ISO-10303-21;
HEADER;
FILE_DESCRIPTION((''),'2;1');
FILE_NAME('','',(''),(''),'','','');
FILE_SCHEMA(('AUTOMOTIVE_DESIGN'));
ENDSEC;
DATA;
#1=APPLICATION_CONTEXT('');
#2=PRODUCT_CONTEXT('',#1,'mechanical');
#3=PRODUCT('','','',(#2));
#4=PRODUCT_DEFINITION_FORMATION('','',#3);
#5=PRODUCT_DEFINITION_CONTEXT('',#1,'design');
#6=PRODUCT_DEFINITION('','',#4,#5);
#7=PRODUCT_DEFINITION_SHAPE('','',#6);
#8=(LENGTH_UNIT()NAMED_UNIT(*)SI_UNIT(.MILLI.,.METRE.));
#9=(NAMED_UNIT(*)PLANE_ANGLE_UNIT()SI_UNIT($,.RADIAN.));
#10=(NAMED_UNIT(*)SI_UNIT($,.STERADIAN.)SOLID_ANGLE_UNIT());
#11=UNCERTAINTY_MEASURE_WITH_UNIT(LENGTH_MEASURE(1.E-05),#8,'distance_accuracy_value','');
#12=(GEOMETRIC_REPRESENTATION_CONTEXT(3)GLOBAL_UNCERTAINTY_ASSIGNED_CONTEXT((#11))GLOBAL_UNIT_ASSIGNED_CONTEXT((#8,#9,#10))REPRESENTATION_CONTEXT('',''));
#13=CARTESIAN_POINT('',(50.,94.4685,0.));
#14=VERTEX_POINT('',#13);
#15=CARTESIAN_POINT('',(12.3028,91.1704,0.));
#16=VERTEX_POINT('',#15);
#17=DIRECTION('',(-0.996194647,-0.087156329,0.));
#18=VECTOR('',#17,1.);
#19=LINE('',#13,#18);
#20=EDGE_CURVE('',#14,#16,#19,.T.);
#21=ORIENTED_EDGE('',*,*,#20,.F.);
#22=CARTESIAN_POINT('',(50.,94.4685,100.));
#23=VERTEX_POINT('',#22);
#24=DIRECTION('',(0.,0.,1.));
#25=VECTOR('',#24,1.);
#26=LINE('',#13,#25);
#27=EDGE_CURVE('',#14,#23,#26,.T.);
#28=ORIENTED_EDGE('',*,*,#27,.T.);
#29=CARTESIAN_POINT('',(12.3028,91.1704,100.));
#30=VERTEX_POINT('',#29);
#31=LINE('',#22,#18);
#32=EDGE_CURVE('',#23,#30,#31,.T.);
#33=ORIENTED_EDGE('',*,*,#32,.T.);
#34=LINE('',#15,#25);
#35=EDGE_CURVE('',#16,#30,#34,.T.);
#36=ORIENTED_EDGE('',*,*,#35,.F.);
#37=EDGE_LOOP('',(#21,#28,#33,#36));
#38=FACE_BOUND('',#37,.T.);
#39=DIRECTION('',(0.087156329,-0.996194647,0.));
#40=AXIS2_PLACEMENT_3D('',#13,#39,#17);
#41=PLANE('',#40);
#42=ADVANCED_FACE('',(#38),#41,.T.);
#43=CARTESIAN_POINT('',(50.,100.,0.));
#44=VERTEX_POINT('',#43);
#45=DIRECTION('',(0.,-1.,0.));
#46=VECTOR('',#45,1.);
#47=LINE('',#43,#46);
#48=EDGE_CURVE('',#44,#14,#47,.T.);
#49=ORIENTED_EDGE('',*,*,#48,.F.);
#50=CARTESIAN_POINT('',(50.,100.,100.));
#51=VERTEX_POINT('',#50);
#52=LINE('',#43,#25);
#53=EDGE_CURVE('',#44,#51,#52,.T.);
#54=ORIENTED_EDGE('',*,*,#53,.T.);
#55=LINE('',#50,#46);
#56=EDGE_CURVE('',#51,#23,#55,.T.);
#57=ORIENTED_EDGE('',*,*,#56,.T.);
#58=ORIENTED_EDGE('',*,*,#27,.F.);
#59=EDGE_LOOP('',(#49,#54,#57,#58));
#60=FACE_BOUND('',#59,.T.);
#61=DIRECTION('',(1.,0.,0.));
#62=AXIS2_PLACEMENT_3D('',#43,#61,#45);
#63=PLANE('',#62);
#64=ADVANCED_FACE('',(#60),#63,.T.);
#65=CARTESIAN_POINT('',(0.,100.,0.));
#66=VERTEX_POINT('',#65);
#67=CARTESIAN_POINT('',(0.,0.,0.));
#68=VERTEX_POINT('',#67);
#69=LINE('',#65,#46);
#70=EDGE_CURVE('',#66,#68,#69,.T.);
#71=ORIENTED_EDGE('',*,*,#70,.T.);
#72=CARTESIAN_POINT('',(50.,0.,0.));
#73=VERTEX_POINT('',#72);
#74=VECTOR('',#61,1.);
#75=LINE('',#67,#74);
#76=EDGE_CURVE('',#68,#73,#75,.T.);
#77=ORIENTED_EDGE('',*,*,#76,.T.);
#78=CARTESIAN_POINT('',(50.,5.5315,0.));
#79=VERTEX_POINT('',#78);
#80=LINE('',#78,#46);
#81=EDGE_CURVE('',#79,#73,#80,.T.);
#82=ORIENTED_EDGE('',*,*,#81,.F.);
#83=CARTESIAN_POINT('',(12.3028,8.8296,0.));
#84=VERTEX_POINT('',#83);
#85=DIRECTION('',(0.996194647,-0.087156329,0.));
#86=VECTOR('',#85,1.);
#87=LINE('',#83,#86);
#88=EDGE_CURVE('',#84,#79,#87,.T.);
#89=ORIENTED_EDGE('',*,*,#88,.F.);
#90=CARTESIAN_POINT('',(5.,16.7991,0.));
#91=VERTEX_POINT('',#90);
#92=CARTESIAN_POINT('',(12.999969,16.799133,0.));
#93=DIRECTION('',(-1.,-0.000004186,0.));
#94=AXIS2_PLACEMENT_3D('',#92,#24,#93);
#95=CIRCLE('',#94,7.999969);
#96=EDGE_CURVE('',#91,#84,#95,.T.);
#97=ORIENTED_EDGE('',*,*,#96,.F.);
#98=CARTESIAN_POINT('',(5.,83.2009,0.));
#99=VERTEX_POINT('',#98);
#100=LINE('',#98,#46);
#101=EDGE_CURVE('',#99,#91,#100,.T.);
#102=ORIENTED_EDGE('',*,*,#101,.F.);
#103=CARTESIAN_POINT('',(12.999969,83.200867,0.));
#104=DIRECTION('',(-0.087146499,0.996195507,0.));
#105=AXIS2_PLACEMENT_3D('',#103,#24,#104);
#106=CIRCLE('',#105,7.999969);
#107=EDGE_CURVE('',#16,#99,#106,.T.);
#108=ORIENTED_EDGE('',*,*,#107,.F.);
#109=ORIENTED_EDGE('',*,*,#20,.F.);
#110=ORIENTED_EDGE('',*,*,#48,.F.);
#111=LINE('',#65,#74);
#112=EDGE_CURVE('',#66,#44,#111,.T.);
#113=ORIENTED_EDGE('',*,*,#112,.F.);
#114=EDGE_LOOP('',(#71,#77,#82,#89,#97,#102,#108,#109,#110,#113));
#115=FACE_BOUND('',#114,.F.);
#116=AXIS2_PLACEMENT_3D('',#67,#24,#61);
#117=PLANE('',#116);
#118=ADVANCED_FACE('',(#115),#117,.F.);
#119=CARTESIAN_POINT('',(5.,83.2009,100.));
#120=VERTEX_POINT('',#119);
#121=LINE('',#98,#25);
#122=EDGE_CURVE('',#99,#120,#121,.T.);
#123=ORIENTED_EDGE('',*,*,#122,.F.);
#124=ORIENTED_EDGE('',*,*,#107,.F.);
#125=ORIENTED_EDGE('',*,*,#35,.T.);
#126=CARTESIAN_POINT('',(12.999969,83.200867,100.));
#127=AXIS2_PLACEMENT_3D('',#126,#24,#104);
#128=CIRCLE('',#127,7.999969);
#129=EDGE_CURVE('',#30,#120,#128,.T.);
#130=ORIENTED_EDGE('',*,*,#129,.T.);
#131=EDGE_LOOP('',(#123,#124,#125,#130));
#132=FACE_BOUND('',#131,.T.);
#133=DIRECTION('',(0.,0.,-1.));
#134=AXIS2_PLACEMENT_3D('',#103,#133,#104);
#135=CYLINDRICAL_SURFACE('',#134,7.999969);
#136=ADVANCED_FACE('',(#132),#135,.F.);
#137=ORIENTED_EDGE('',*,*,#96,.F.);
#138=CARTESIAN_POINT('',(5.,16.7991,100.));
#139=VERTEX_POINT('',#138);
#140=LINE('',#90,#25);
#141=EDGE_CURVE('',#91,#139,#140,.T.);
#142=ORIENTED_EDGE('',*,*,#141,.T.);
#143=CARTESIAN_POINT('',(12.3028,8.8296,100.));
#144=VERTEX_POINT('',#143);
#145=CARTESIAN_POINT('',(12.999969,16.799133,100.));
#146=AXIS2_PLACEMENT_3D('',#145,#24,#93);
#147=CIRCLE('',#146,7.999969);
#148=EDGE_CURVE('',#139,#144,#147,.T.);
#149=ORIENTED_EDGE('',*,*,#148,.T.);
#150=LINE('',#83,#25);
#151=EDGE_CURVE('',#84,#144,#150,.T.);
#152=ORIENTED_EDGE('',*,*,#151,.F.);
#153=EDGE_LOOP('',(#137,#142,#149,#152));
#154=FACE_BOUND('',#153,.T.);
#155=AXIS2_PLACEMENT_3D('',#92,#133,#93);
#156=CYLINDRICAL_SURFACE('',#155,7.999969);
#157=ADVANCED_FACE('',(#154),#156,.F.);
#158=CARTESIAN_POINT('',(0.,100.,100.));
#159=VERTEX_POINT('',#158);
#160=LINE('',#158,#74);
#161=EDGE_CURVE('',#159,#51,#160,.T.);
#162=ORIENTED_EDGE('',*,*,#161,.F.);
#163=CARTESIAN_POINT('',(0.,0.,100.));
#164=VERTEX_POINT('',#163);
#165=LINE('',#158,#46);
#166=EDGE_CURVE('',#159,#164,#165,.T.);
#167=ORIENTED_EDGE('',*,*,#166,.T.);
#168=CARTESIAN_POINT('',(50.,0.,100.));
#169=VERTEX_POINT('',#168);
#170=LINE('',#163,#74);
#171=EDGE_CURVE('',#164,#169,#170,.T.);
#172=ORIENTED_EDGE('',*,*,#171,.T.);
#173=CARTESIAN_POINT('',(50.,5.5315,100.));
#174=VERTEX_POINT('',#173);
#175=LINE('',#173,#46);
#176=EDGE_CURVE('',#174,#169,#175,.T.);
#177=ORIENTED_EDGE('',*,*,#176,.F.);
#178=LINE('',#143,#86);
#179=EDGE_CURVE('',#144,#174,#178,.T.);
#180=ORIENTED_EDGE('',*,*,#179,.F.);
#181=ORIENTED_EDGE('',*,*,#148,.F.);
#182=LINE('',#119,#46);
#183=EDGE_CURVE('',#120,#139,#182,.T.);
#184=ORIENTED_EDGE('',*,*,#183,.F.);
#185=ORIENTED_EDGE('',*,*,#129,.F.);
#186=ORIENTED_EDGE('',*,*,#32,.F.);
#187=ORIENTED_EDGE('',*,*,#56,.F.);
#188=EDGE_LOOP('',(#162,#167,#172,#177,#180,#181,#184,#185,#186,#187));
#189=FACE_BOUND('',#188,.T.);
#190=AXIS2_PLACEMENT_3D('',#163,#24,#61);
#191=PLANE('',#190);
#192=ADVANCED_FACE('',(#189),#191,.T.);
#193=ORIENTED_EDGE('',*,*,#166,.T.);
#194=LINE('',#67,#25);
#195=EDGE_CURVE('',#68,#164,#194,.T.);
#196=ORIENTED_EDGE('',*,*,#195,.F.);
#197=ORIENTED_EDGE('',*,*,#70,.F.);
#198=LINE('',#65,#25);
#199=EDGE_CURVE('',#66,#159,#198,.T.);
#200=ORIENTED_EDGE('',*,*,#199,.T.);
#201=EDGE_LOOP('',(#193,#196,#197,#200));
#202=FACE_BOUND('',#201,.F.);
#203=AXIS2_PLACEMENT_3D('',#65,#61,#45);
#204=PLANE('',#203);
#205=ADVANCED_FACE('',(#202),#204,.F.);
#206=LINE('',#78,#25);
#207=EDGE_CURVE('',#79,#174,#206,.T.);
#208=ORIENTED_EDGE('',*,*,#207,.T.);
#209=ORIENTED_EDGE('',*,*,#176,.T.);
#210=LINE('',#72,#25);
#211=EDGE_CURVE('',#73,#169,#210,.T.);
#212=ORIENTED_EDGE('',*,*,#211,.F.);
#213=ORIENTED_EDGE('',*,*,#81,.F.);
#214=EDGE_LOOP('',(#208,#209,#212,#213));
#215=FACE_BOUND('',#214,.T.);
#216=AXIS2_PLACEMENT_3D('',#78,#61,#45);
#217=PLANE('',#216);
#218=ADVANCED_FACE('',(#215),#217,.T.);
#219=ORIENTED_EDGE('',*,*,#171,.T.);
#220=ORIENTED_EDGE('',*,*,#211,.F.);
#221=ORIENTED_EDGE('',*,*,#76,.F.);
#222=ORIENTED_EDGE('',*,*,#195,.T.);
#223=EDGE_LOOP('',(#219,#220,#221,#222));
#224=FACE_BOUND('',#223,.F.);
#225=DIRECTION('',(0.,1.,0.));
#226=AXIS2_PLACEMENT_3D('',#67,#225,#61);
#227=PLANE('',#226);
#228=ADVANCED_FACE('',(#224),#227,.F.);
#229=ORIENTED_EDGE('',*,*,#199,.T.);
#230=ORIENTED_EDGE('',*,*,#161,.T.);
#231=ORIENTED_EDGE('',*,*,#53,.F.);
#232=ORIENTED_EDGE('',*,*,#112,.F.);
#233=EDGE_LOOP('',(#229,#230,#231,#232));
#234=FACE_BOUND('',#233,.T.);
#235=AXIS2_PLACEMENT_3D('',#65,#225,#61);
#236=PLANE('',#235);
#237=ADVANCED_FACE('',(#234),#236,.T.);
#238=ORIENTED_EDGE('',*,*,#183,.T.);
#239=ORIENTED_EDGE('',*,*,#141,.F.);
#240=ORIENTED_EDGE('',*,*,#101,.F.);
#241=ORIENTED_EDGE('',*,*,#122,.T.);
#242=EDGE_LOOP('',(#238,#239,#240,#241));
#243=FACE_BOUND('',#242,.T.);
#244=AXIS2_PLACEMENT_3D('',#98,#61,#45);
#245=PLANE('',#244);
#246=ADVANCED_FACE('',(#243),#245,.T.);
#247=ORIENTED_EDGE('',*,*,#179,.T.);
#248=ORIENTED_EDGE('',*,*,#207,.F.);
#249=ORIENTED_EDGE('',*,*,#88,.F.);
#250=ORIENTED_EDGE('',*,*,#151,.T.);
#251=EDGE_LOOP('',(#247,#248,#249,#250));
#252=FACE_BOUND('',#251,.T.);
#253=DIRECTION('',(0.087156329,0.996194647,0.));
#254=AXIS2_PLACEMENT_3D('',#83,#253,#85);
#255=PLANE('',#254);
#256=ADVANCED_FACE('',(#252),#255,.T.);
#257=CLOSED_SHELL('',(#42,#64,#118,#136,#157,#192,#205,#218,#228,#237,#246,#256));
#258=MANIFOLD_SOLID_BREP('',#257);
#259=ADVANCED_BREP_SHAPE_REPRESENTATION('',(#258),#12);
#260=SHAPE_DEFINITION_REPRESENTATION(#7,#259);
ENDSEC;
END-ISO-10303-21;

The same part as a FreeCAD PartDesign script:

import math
import FreeCAD as App
import Part
import Sketcher
from FreeCAD import Vector
Q = App.Units.Quantity

doc = App.newDocument("Part")
body = doc.addObject("PartDesign::Body", "Body")

# Sketch on XY plane
sketch1 = doc.addObject("Sketcher::SketchObject", "Sketch")
body.addObject(sketch1)
sketch1.AttachmentSupport = (doc.XY_Plane, [""])
sketch1.MapMode = "FlatFace"
sketch1.addGeometry(Part.LineSegment(Vector(5, 17, 0), Vector(5, 83, 0)), False)
sketch1.addGeometry(Part.ArcOfCircle(Part.Circle(Vector(13, 83, 0), Vector(0, 0, 1), 8), math.radians(95), math.radians(180)), False)
sketch1.addGeometry(Part.LineSegment(Vector(12, 91, 0), Vector(50, 94, 0)), False)
sketch1.addGeometry(Part.LineSegment(Vector(50, 94, 0), Vector(50, 100, 0)), False)
sketch1.addGeometry(Part.LineSegment(Vector(50, 100, 0), Vector(0, 100, 0)), False)
sketch1.addGeometry(Part.LineSegment(Vector(0, 100, 0), Vector(0, 0, 0)), False)
sketch1.addGeometry(Part.LineSegment(Vector(0, 0, 0), Vector(50, 0, 0)), False)
sketch1.addGeometry(Part.LineSegment(Vector(50, 0, 0), Vector(50, 6, 0)), False)
sketch1.addGeometry(Part.LineSegment(Vector(50, 6, 0), Vector(12, 9, 0)), False)
sketch1.addGeometry(Part.ArcOfCircle(Part.Circle(Vector(13, 17, 0), Vector(0, 0, 1), 8), math.radians(180), math.radians(265)), False)
sketch1.addConstraint(Sketcher.Constraint("Tangent", 0, 2, 1, 2))
sketch1.addConstraint(Sketcher.Constraint("Tangent", 1, 1, 2, 1))
sketch1.addConstraint(Sketcher.Constraint("Coincident", 2, 2, 3, 1))
sketch1.addConstraint(Sketcher.Constraint("Coincident", 3, 2, 4, 1))
sketch1.addConstraint(Sketcher.Constraint("Coincident", 4, 2, 5, 1))
sketch1.addConstraint(Sketcher.Constraint("Coincident", 5, 2, 6, 1))
sketch1.addConstraint(Sketcher.Constraint("Coincident", 6, 2, 7, 1))
sketch1.addConstraint(Sketcher.Constraint("Coincident", 7, 2, 8, 1))
sketch1.addConstraint(Sketcher.Constraint("Tangent", 8, 2, 9, 2))
sketch1.addConstraint(Sketcher.Constraint("Tangent", 9, 1, 0, 1))
sketch1.addConstraint(Sketcher.Constraint("Vertical", 0))
sketch1.addConstraint(Sketcher.Constraint("Vertical", 3))
sketch1.addConstraint(Sketcher.Constraint("Horizontal", 4))
sketch1.addConstraint(Sketcher.Constraint("Vertical", 5))
sketch1.addConstraint(Sketcher.Constraint("Horizontal", 6))
sketch1.addConstraint(Sketcher.Constraint("Vertical", 7))
sketch1.addConstraint(Sketcher.Constraint("Coincident", 5, 2, -1, 1))
sketch1.addConstraint(Sketcher.Constraint("Equal", 1, 9))
sketch1.addConstraint(Sketcher.Constraint("Vertical", 3, 2, 6, 2))
sketch1.addConstraint(Sketcher.Constraint("Vertical", 1, 1, 8, 2))
sketch1.addConstraint(Sketcher.Constraint("Equal", 3, 7))
sketch1.addConstraint(Sketcher.Constraint("Radius", 1, Q("8 mm")))
sketch1.addConstraint(Sketcher.Constraint("DistanceX", 4, 2, 4, 1, Q("50 mm")))
sketch1.addConstraint(Sketcher.Constraint("DistanceY", 5, 2, 5, 1, Q("100 mm")))
sketch1.addConstraint(Sketcher.Constraint("Angle", 2, Q("5 deg")))
sketch1.addConstraint(Sketcher.Constraint("DistanceX", -1, 1, 1, 3, Q("13 mm")))
sketch1.addConstraint(Sketcher.Constraint("DistanceY", 0, 1, 0, 2, Q("66.4018 mm")))
pad1 = doc.addObject("PartDesign::Pad", "Pad")
body.addObject(pad1)
pad1.Profile = sketch1
pad1.Length = 100

doc.recompute()
